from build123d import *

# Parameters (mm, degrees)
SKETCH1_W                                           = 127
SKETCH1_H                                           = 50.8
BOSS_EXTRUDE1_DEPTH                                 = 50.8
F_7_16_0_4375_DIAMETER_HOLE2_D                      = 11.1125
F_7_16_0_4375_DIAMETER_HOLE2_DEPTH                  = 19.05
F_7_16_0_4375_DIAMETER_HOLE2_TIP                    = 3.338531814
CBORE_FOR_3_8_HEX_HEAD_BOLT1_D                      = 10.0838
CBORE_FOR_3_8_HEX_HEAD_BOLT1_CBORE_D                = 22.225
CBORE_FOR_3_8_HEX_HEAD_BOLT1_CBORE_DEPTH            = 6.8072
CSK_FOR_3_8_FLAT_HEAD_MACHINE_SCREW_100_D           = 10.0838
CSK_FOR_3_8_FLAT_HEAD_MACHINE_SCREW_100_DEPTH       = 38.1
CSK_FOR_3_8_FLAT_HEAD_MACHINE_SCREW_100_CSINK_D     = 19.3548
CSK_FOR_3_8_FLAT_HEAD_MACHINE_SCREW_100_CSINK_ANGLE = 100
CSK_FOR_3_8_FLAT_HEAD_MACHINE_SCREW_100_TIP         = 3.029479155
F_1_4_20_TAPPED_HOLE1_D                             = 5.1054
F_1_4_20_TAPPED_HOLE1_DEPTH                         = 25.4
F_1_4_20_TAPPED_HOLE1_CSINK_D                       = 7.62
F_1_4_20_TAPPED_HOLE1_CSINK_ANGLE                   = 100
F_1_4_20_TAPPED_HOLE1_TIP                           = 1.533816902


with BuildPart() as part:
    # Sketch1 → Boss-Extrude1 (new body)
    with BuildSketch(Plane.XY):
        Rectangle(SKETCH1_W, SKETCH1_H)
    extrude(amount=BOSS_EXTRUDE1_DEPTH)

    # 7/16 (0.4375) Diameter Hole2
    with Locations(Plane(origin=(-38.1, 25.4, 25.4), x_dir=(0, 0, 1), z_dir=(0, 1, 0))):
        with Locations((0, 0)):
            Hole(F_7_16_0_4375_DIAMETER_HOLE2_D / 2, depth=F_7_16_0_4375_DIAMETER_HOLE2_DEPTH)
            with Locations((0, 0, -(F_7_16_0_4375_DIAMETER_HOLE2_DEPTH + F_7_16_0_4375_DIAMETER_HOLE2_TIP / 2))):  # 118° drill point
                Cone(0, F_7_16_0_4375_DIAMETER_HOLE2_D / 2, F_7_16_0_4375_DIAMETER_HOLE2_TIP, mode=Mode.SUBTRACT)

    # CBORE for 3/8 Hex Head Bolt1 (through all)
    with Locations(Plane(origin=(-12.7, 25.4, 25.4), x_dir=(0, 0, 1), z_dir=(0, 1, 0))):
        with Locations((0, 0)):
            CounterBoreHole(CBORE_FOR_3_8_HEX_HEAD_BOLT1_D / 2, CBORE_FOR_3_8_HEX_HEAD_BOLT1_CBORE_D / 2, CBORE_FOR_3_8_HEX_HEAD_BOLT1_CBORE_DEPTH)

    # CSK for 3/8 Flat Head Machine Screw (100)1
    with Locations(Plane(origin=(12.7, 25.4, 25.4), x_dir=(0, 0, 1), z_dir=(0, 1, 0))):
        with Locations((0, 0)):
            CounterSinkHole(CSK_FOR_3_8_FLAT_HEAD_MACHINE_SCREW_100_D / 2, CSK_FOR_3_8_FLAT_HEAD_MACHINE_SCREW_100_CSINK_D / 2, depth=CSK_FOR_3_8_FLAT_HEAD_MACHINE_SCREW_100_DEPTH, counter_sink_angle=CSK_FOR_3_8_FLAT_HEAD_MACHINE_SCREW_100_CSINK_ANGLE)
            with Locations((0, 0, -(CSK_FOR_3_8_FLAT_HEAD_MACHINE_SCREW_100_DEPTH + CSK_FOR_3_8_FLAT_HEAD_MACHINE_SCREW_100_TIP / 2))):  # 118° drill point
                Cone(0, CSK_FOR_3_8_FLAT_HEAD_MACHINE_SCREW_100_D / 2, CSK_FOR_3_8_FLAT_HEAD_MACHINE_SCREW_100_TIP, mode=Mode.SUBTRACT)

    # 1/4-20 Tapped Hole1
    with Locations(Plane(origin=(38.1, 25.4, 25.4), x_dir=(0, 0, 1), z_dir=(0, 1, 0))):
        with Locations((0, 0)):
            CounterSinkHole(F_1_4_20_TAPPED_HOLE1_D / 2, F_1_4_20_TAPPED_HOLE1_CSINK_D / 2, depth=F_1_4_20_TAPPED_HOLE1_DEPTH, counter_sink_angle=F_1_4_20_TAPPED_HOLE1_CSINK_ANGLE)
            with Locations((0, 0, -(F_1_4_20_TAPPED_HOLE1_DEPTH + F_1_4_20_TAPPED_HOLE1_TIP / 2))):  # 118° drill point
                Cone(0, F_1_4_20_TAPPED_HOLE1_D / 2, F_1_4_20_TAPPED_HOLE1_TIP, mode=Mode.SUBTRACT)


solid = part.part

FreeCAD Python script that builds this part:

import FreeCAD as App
import Part
import Sketcher
from FreeCAD import Vector
Q = App.Units.Quantity


def add_polygon(sketch, points):
    """Adds a closed chain of lines whose ends are joined by coincident constraints."""
    first, n = sketch.GeometryCount, len(points)
    for a, b in zip(points, points[1:] + points[:1]):
        sketch.addGeometry(Part.LineSegment(App.Vector(*a, 0), App.Vector(*b, 0)), False)
    for i in range(n):
        sketch.addConstraint(Sketcher.Constraint("Coincident", first + i, 2, first + (i + 1) % n, 1))

doc = App.newDocument("Part")
params = doc.addObject("Spreadsheet::Sheet", "Params")
for row, (alias, value) in enumerate([
    ("sketch1_width", "5 in"),
    ("sketch1_height", "2 in"),
    ("pad1_length", "2 in"),
    ("sketch2_diameter", "0.4375 in"),
    ("hole_diameter", "0.4375 in"),
    ("hole_depth", "0.75 in"),
    ("sketch3_diameter", "0.397 in"),
    ("hole2_diameter", "0.397 in"),
    ("hole2_cbore_diameter", "0.875 in"),
    ("hole2_cbore_depth", "0.268 in"),
    ("sketch4_diameter", "0.397 in"),
    ("hole3_diameter", "0.397 in"),
    ("hole3_depth", "1.5 in"),
    ("hole3_csink_diameter", "0.762 in"),
    ("sketch5_diameter", "0.201 in"),
    ("hole4_diameter", "0.201 in"),
    ("hole4_depth", "1 in"),
    ("hole4_csink_diameter", "0.3 in"),
], start=1):
    params.set(f"A{row}", alias)
    params.set(f"B{row}", "=" + value)
    params.setAlias(f"B{row}", alias)

body = doc.addObject("PartDesign::Body", "Body")

sketch1 = doc.addObject("Sketcher::SketchObject", "Sketch")
body.addObject(sketch1)
sketch1.AttachmentSupport = (doc.XY_Plane, [""])
sketch1.MapMode = "FlatFace"
add_polygon(sketch1, [(-63.5, 25.4), (-63.5, -25.4), (63.5, -25.4), (63.5, 25.4)])
sketch1.addConstraint(Sketcher.Constraint("Vertical", 0))
sketch1.addConstraint(Sketcher.Constraint("Horizontal", 1))
sketch1.addConstraint(Sketcher.Constraint("Vertical", 2))
sketch1.addConstraint(Sketcher.Constraint("Horizontal", 3))
sketch1.addConstraint(Sketcher.Constraint("Symmetric", 0, 2, 2, 2, -1, 1))
sketch1.addConstraint(Sketcher.Constraint("DistanceX", 1, 1, 1, 2, Q("5 in")))
sketch1.addConstraint(Sketcher.Constraint("DistanceY", 0, 2, 0, 1, Q("2 in")))
sketch1.setExpression("Constraints[9]", "Params.sketch1_width")
sketch1.setExpression("Constraints[10]", "Params.sketch1_height")
pad1 = doc.addObject("PartDesign::Pad", "Pad")
body.addObject(pad1)
pad1.Profile = sketch1
pad1.setExpression("Length", "Params.pad1_length")

sketch2 = doc.addObject("Sketcher::SketchObject", "Sketch001")
body.addObject(sketch2)
sketch2.AttachmentSupport = (doc.XZ_Plane, [""])
sketch2.MapMode = "FlatFace"
sketch2.AttachmentOffset = App.Placement(Vector(0, 0, -1 * 25.4), App.Rotation())
sketch2.addGeometry(Part.Circle(Vector(-38.1, 25.4, 0), Vector(0, 0, 1), 5.55625), False)
sketch2.addConstraint(Sketcher.Constraint("Diameter", 0, Q("0.4375 in")))
sketch2.addConstraint(Sketcher.Constraint("DistanceY", -1, 1, 0, 3, Q("1 in")))
sketch2.addConstraint(Sketcher.Constraint("DistanceX", 0, 3, -1, 1, Q("1.5 in")))
sketch2.setExpression("Constraints[0]", "Params.sketch2_diameter")
doc.recompute()
hole = doc.addObject("PartDesign::Hole", "Hole")
body.addObject(hole)
hole.Profile = sketch2
hole.ThreadType = "None"
hole.setExpression("Diameter", "Params.hole_diameter")
hole.DepthType = "Dimension"
hole.setExpression("Depth", "Params.hole_depth")
hole.DrillPoint = "Angled"
hole.DrillPointAngle = 118
hole.Reversed = True

sketch3 = doc.addObject("Sketcher::SketchObject", "Sketch002")
body.addObject(sketch3)
sketch3.AttachmentSupport = (doc.XZ_Plane, [""])
sketch3.MapMode = "FlatFace"
sketch3.AttachmentOffset = App.Placement(Vector(0, 0, -1 * 25.4), App.Rotation())
sketch3.addGeometry(Part.Circle(Vector(-12.7, 25.4, 0), Vector(0, 0, 1), 5.0419), False)
sketch3.addConstraint(Sketcher.Constraint("Diameter", 0, Q("0.397 in")))
sketch3.addConstraint(Sketcher.Constraint("DistanceY", -1, 1, 0, 3, Q("1 in")))
sketch3.addConstraint(Sketcher.Constraint("DistanceX", 0, 3, -1, 1, Q("0.5 in")))
sketch3.setExpression("Constraints[0]", "Params.sketch3_diameter")
doc.recompute()
hole2 = doc.addObject("PartDesign::Hole", "Hole001")
body.addObject(hole2)
hole2.Profile = sketch3
hole2.ThreadType = "None"
hole2.setExpression("Diameter", "Params.hole2_diameter")
hole2.DepthType = "ThroughAll"
hole2.HoleCutType = "Counterbore"
hole2.setExpression("HoleCutDiameter", "Params.hole2_cbore_diameter")
hole2.setExpression("HoleCutDepth", "Params.hole2_cbore_depth")
hole2.Reversed = True

sketch4 = doc.addObject("Sketcher::SketchObject", "Sketch003")
body.addObject(sketch4)
sketch4.AttachmentSupport = (doc.XZ_Plane, [""])
sketch4.MapMode = "FlatFace"
sketch4.AttachmentOffset = App.Placement(Vector(0, 0, -1 * 25.4), App.Rotation())
sketch4.addGeometry(Part.Circle(Vector(12.7, 25.4, 0), Vector(0, 0, 1), 5.0419), False)
sketch4.addConstraint(Sketcher.Constraint("Diameter", 0, Q("0.397 in")))
sketch4.addConstraint(Sketcher.Constraint("DistanceY", -1, 1, 0, 3, Q("1 in")))
sketch4.addConstraint(Sketcher.Constraint("DistanceX", -1, 1, 0, 3, Q("0.5 in")))
sketch4.setExpression("Constraints[0]", "Params.sketch4_diameter")
doc.recompute()
hole3 = doc.addObject("PartDesign::Hole", "Hole002")
body.addObject(hole3)
hole3.Profile = sketch4
hole3.ThreadType = "None"
hole3.setExpression("Diameter", "Params.hole3_diameter")
hole3.DepthType = "Dimension"
hole3.setExpression("Depth", "Params.hole3_depth")
hole3.DrillPoint = "Angled"
hole3.DrillPointAngle = 118
hole3.HoleCutType = "Countersink"
hole3.setExpression("HoleCutDiameter", "Params.hole3_csink_diameter")
hole3.HoleCutCountersinkAngle = 100
hole3.Reversed = True

sketch5 = doc.addObject("Sketcher::SketchObject", "Sketch004")
body.addObject(sketch5)
sketch5.AttachmentSupport = (doc.XZ_Plane, [""])
sketch5.MapMode = "FlatFace"
sketch5.AttachmentOffset = App.Placement(Vector(0, 0, -1 * 25.4), App.Rotation())
sketch5.addGeometry(Part.Circle(Vector(38.1, 25.4, 0), Vector(0, 0, 1), 2.5527), False)
sketch5.addConstraint(Sketcher.Constraint("Diameter", 0, Q("0.201 in")))
sketch5.addConstraint(Sketcher.Constraint("DistanceY", -1, 1, 0, 3, Q("1 in")))
sketch5.addConstraint(Sketcher.Constraint("DistanceX", -1, 1, 0, 3, Q("1.5 in")))
sketch5.setExpression("Constraints[0]", "Params.sketch5_diameter")
doc.recompute()
hole4 = doc.addObject("PartDesign::Hole", "Hole003")
body.addObject(hole4)
hole4.Profile = sketch5
hole4.ThreadType = "None"
hole4.setExpression("Diameter", "Params.hole4_diameter")
hole4.DepthType = "Dimension"
hole4.setExpression("Depth", "Params.hole4_depth")
hole4.DrillPoint = "Angled"
hole4.DrillPointAngle = 118
hole4.HoleCutType = "Countersink"
hole4.setExpression("HoleCutDiameter", "Params.hole4_csink_diameter")
hole4.HoleCutCountersinkAngle = 100
hole4.Reversed = True

doc.recompute()
